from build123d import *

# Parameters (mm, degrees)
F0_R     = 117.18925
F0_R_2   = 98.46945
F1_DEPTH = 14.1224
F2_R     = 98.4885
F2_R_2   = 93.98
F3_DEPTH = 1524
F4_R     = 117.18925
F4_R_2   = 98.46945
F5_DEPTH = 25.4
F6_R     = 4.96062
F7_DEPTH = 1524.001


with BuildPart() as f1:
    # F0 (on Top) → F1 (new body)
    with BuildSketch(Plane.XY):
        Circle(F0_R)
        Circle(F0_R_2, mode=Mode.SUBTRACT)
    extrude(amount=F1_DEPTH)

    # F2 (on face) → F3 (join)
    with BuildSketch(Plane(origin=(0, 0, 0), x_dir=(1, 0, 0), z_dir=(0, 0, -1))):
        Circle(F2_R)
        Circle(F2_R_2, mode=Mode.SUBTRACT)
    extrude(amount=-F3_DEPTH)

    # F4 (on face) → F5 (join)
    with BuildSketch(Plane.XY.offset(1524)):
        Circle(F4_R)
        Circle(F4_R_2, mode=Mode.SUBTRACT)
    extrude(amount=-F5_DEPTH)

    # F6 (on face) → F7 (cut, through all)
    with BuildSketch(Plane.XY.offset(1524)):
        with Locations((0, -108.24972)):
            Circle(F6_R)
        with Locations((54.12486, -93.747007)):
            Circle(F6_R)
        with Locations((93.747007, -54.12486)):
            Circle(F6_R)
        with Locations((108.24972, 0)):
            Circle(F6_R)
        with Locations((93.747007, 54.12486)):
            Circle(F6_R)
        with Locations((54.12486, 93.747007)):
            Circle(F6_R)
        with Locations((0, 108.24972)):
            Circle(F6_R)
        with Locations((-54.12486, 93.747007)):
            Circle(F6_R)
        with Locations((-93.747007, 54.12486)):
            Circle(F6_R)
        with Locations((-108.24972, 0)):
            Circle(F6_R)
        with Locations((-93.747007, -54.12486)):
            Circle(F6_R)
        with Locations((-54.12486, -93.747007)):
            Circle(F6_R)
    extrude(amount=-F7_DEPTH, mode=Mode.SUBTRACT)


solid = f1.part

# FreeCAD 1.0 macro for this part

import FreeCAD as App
import Part
import Sketcher

V = App.Vector
Q = App.Units.Quantity

doc = App.newDocument("Part")
params = doc.addObject("Spreadsheet::Sheet", "Params")
for row, (alias, value) in enumerate([
    ("pad1_length", "0.556 in"),
    ("sketch2_diameter", "7.4 in"),
    ("sketch2_diameter2", "7.755 in"),
    ("pad2_length", "60 in"),
    ("pad3_length", "1 in"),
], start=1):
    params.set(f"A{row}", alias)
    params.set(f"B{row}", "=" + value)
    params.setAlias(f"B{row}", alias)

body = doc.addObject("PartDesign::Body", "Body")

# Sketch on XY plane
sketch1 = body.newObject("Sketcher::SketchObject", "Sketch")
sketch1.AttachmentSupport = (doc.getObject("XY_Plane"), [""])
sketch1.MapMode = "FlatFace"
sketch1.addGeometry([
    Part.Circle(V(0, 0, 0), V(0, 0, 1), 117),
    Part.Circle(V(0, 0, 0), V(0, 0, 1), 98),
], False)
sketch1.addConstraint([
    Sketcher.Constraint("Coincident", 0, 3, -1, 1),
    Sketcher.Constraint("Coincident", 1, 3, -1, 1),
    Sketcher.Constraint("Diameter", 0, Q("9.2275 in")),
    Sketcher.Constraint("Diameter", 1, Q("7.7535 in")),
])
pad1 = body.newObject("PartDesign::Pad", "Pad")
pad1.Profile = sketch1
pad1.setExpression("Length", "Params.pad1_length")

# Sketch on XY plane
sketch2 = body.newObject("Sketcher::SketchObject", "Sketch001")
sketch2.AttachmentSupport = (doc.getObject("XY_Plane"), [""])
sketch2.MapMode = "FlatFace"
sketch2.addGeometry([
    Part.Circle(V(0, 0, 0), V(0, 0, 1), 98),
    Part.Circle(V(0, 0, 0), V(0, 0, 1), 94),
], False)
sketch2.addConstraint([
    Sketcher.Constraint("Coincident", 0, 3, -1, 1),
    Sketcher.Constraint("Coincident", 1, 3, -1, 1),
    Sketcher.Constraint("Diameter", 1, Q("7.4 in")),
    Sketcher.Constraint("Diameter", 0, Q("7.755 in")),
])
sketch2.setExpression("Constraints[2]", "Params.sketch2_diameter")
sketch2.setExpression("Constraints[3]", "Params.sketch2_diameter2")
pad2 = body.newObject("PartDesign::Pad", "Pad001")
pad2.Profile = sketch2
pad2.setExpression("Length", "Params.pad2_length")

# Sketch on XY plane
sketch3 = body.newObject("Sketcher::SketchObject", "Sketch002")
sketch3.AttachmentSupport = (doc.getObject("XY_Plane"), [""])
sketch3.MapMode = "FlatFace"
sketch3.AttachmentOffset = App.Placement(V(0, 0, 60 * 25.4), App.Rotation())
sketch3.addGeometry([
    Part.Circle(V(0, 0, 0), V(0, 0, 1), 117),
    Part.Circle(V(0, 0, 0), V(0, 0, 1), 98),
], False)
sketch3.addConstraint([
    Sketcher.Constraint("Coincident", 0, 3, -1, 1),
    Sketcher.Constraint("Coincident", 1, 3, -1, 1),
    Sketcher.Constraint("Diameter", 0, Q("9.2275 in")),
    Sketcher.Constraint("Diameter", 1, Q("7.7535 in")),
])
pad3 = body.newObject("PartDesign::Pad", "Pad002")
pad3.Profile = sketch3
pad3.setExpression("Length", "Params.pad3_length")
pad3.Reversed = True

# Sketch on XY plane
sketch4 = body.newObject("Sketcher::SketchObject", "Sketch003")
sketch4.AttachmentSupport = (doc.getObject("XY_Plane"), [""])
sketch4.MapMode = "FlatFace"
sketch4.AttachmentOffset = App.Placement(V(0, 0, 60 * 25.4), App.Rotation())
sketch4.addGeometry([
    Part.Circle(V(0, -108.2, 0), V(0, 0, 1), 5),  # 0
    Part.Circle(V(54.1, -93.7, 0), V(0, 0, 1), 5),  # 1
    Part.Circle(V(93.7, -54.1, 0), V(0, 0, 1), 5),  # 2
    Part.Circle(V(108.2, 0, 0), V(0, 0, 1), 5),  # 3
    Part.Circle(V(93.7, 54.1, 0), V(0, 0, 1), 5),  # 4
    Part.Circle(V(54.1, 93.7, 0), V(0, 0, 1), 5),  # 5
    Part.Circle(V(0, 108.2, 0), V(0, 0, 1), 5),  # 6
    Part.Circle(V(-54.1, 93.7, 0), V(0, 0, 1), 5),  # 7
    Part.Circle(V(-93.7, 54.1, 0), V(0, 0, 1), 5),  # 8
    Part.Circle(V(-108.2, 0, 0), V(0, 0, 1), 5),  # 9
    Part.Circle(V(-93.7, -54.1, 0), V(0, 0, 1), 5),  # 10
    Part.Circle(V(-54.1, -93.7, 0), V(0, 0, 1), 5),  # 11
], False)
sketch4.addConstraint([
    Sketcher.Constraint("Equal", 0, 1),
    Sketcher.Constraint("Equal", 1, 2),
    Sketcher.Constraint("Equal", 2, 3),
    Sketcher.Constraint("Equal", 3, 4),
    Sketcher.Constraint("Equal", 4, 5),
    Sketcher.Constraint("Equal", 5, 6),
    Sketcher.Constraint("Equal", 6, 7),
    Sketcher.Constraint("Equal", 7, 8),
    Sketcher.Constraint("Equal", 8, 9),
    Sketcher.Constraint("Equal", 9, 10),
    Sketcher.Constraint("Equal", 10, 11),
    Sketcher.Constraint("Symmetric", 0, 3, 6, 3, -1, 1),
    Sketcher.Constraint("Symmetric", 1, 3, 7, 3, -1, 1),
    Sketcher.Constraint("Symmetric", 2, 3, 8, 3, -1, 1),
    Sketcher.Constraint("Symmetric", 3, 3, 9, 3, -1, 1),
    Sketcher.Constraint("Symmetric", 4, 3, 10, 3, -1, 1),
    Sketcher.Constraint("Symmetric", 5, 3, 11, 3, -1, 1),
    Sketcher.Constraint("Symmetric", 5, 3, 7, 3, -2),
    Sketcher.Constraint("Symmetric", 4, 3, 8, 3, -2),
    Sketcher.Constraint("PointOnObject", 0, 3, -2),
    Sketcher.Constraint("PointOnObject", 3, 3, -1),
    Sketcher.Constraint("Diameter", 0, Q("0.3906 in")),
    Sketcher.Constraint("DistanceY", 0, 3, -1, 1, Q("4.2618 in")),
    Sketcher.Constraint("DistanceX", -1, 1, 1, 3, Q("2.1309 in")),
    Sketcher.Constraint("DistanceY", 2, 3, -1, 1, Q("2.1309 in")),
    Sketcher.Constraint("DistanceX", -1, 1, 3, 3, Q("4.2618 in")),
    Sketcher.Constraint("DistanceY", 1, 3, -1, 1, 93.747007),
    Sketcher.Constraint("DistanceX", -1, 1, 2, 3, 93.747007),
])
pocket1 = body.newObject("PartDesign::Pocket", "Pocket")
pocket1.Profile = sketch4
pocket1.Type = "ThroughAll"

doc.recompute()
